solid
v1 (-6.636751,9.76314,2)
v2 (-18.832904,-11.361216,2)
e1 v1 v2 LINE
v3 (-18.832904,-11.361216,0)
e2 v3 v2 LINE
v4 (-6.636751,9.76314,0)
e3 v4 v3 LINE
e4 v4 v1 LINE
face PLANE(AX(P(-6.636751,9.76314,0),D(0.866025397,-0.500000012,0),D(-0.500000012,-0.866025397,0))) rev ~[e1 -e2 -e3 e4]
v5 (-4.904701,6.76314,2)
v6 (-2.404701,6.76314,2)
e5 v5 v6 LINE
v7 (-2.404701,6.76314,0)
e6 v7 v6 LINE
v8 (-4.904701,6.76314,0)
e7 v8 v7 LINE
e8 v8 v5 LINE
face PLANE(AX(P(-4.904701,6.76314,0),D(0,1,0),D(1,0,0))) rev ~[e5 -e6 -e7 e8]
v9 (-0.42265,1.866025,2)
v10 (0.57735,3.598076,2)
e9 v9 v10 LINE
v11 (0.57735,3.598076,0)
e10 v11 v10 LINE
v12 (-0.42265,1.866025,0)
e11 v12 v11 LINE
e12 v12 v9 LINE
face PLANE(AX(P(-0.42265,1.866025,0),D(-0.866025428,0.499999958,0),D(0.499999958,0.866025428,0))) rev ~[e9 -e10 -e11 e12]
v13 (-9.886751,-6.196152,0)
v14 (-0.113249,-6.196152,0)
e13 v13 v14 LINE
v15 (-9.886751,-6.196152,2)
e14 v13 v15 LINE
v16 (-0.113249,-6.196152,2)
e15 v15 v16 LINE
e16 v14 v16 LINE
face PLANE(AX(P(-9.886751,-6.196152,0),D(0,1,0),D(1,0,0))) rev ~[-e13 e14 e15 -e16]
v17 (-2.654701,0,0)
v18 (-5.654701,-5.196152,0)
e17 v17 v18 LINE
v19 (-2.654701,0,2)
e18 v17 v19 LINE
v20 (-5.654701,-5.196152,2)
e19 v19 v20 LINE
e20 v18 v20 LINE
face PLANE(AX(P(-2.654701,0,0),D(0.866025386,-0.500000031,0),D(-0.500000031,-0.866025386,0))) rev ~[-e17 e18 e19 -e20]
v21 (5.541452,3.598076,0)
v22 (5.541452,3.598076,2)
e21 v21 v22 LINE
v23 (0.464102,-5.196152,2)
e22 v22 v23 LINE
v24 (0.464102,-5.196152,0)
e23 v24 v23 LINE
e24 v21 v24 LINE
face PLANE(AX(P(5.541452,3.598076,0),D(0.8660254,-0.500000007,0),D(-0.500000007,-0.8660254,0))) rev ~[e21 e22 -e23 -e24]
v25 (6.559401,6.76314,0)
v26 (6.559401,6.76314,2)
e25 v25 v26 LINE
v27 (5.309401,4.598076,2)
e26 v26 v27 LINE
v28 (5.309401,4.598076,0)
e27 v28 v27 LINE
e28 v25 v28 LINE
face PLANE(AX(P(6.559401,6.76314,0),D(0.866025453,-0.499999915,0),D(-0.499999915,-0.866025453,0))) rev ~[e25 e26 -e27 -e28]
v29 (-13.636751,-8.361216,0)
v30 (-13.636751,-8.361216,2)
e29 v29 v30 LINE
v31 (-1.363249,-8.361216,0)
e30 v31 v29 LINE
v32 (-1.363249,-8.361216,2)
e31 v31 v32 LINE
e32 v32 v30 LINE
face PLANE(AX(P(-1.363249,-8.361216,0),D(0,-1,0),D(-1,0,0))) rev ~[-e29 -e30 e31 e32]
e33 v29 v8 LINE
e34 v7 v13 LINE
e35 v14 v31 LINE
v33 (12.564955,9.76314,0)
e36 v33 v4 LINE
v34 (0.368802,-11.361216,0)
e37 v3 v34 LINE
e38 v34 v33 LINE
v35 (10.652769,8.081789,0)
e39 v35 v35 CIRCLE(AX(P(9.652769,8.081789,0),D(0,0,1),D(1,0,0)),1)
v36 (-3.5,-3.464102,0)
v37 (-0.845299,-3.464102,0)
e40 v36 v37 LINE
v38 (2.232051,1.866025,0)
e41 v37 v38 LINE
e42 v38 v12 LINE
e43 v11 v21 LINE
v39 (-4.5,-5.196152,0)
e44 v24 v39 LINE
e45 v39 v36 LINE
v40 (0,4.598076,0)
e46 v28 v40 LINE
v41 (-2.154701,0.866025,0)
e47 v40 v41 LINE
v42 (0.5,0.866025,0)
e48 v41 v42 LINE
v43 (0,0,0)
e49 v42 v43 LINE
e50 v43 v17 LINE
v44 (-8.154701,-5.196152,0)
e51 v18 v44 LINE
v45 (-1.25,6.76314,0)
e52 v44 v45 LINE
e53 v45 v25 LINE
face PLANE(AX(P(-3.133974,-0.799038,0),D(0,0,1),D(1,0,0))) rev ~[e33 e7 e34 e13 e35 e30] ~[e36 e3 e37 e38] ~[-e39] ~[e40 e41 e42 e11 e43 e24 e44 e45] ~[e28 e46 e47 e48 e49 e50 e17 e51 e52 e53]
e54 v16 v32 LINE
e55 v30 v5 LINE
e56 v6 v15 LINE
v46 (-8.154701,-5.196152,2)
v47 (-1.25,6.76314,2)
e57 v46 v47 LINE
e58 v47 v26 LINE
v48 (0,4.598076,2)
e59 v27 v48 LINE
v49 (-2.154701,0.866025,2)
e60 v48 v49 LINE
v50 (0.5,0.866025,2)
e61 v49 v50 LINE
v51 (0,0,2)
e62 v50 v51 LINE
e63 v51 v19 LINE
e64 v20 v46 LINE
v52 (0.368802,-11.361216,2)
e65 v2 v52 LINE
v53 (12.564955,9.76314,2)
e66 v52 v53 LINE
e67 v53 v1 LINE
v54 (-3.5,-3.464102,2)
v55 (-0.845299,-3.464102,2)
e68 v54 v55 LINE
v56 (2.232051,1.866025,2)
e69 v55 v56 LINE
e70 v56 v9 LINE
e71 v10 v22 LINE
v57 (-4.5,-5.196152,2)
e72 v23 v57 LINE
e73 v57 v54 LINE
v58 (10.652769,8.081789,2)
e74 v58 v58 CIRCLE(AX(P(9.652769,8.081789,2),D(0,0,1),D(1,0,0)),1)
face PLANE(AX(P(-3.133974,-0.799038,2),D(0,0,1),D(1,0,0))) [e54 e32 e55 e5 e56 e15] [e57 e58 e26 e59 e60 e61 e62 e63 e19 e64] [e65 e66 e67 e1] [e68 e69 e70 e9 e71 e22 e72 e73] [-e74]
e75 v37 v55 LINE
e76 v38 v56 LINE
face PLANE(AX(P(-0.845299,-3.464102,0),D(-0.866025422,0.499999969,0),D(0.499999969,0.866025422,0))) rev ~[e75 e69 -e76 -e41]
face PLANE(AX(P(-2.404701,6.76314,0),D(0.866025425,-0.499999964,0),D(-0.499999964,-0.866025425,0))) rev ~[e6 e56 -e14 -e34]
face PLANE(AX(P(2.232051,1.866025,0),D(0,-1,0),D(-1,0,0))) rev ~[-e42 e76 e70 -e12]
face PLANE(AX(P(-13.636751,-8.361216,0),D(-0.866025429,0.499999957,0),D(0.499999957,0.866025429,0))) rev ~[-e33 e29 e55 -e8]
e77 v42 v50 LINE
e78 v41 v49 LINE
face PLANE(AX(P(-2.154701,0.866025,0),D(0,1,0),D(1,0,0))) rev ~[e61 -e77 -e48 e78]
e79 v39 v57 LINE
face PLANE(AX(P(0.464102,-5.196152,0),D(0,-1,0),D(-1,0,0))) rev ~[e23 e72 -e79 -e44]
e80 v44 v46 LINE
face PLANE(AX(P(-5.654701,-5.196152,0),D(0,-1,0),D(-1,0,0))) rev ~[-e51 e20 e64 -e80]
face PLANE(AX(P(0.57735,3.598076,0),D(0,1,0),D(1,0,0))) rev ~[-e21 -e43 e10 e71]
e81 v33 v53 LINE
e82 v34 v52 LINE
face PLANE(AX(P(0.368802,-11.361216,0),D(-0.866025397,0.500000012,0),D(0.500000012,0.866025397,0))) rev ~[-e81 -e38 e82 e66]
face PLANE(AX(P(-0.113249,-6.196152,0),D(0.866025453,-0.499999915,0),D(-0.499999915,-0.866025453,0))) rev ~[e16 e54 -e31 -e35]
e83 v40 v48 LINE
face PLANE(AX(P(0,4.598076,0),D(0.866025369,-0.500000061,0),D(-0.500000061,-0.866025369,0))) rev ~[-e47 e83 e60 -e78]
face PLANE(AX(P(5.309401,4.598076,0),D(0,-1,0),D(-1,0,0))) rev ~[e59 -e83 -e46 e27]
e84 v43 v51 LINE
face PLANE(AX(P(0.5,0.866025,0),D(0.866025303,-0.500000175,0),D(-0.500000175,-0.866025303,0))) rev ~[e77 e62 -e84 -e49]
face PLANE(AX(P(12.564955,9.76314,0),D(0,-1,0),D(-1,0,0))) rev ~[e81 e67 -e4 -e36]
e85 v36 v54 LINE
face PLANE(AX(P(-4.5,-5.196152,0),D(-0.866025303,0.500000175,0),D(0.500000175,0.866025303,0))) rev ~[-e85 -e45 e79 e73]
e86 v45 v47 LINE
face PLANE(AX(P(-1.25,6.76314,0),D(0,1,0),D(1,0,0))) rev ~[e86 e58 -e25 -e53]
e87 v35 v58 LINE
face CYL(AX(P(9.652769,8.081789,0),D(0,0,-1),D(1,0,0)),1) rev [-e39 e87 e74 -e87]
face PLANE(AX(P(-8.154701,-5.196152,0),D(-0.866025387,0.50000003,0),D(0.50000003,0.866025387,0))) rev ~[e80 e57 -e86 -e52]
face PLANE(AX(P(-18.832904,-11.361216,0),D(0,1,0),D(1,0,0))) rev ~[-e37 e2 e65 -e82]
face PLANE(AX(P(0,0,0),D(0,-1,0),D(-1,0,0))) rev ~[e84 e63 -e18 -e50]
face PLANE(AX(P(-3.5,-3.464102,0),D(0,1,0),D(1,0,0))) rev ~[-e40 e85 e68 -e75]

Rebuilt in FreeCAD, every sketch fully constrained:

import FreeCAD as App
import Part
import Sketcher

V = App.Vector
Q = App.Units.Quantity


def add_polygon(sketch, points):
    """Adds a closed chain of lines whose ends are joined by coincident constraints."""
    first, n = sketch.GeometryCount, len(points)
    for a, b in zip(points, points[1:] + points[:1]):
        sketch.addGeometry(Part.LineSegment(App.Vector(*a, 0), App.Vector(*b, 0)), False)
    for i in range(n):
        sketch.addConstraint(Sketcher.Constraint("Coincident", first + i, 2, first + (i + 1) % n, 1))

doc = App.newDocument("Part")
body = doc.addObject("PartDesign::Body", "Body")

# Sketch on XY plane
sketch1 = doc.addObject("Sketcher::SketchObject", "Sketch")
body.addObject(sketch1)
sketch1.AttachmentSupport = (doc.XY_Plane, [""])
sketch1.MapMode = "FlatFace"
add_polygon(sketch1, [(0.368802, -11.361216), (12.564955, 9.76314), (-6.636751, 9.76314), (-18.832904, -11.361216)])  # lines 0-3
add_polygon(sketch1, [(-13.636751, -8.361216), (-4.904701, 6.76314), (-2.404701, 6.76314), (-9.886751, -6.196152), (-0.113249, -6.196152), (-1.363249, -8.361216)])  # lines 4-9
add_polygon(sketch1, [(0.464102, -5.196152), (-4.5, -5.196152), (-3.5, -3.464102), (-0.845299, -3.464102), (2.232051, 1.866025), (-0.42265, 1.866025), (0.57735, 3.598076), (5.541452, 3.598076)])  # lines 10-17
add_polygon(sketch1, [(-2.654701, 0), (-5.654701, -5.196152), (-8.154701, -5.196152), (-1.25, 6.76314), (6.559401, 6.76314), (5.309401, 4.598076), (0, 4.598076), (-2.154701, 0.866025), (0.5, 0.866025), (0, 0)])  # lines 18-27
sketch1.addGeometry(Part.Circle(V(9.652769, 8.081789, 0), V(0, 0, 1), 1), False)  # 28
sketch1.addConstraint([
    Sketcher.Constraint("Horizontal", 1),
    Sketcher.Constraint("Horizontal", 3),
    Sketcher.Constraint("Horizontal", 5),
    Sketcher.Constraint("Horizontal", 7),
    Sketcher.Constraint("Horizontal", 9),
    Sketcher.Constraint("Horizontal", 10),
    Sketcher.Constraint("Horizontal", 12),
    Sketcher.Constraint("Horizontal", 14),
    Sketcher.Constraint("Horizontal", 16),
    Sketcher.Constraint("Horizontal", 19),
    Sketcher.Constraint("Horizontal", 21),
    Sketcher.Constraint("Horizontal", 23),
    Sketcher.Constraint("Horizontal", 25),
    Sketcher.Constraint("Horizontal", 27),
    Sketcher.Constraint("Coincident", 26, 2, -1, 1),
    Sketcher.Constraint("PointOnObject", 23, 2, -2),
    Sketcher.Constraint("Parallel", 0, 2),
    Sketcher.Constraint("Parallel", 2, 4),
    Sketcher.Constraint("Parallel", 4, 6),
    Sketcher.Constraint("Parallel", 6, 8),
    Sketcher.Constraint("Parallel", 8, 11),
    Sketcher.Constraint("Parallel", 11, 13),
    Sketcher.Constraint("Parallel", 13, 15),
    Sketcher.Constraint("Parallel", 15, 17),
    Sketcher.Constraint("Parallel", 17, 18),
    Sketcher.Constraint("Parallel", 18, 20),
    Sketcher.Constraint("Parallel", 20, 22),
    Sketcher.Constraint("Parallel", 22, 24),
    Sketcher.Constraint("Parallel", 24, 26),
    Sketcher.Constraint("Horizontal", 17, 2, 18, 2),
    Sketcher.Constraint("Horizontal", 5, 2, 20, 2),
    Sketcher.Constraint("Equal", 12, 14),
    Sketcher.Constraint("Equal", 5, 19),
    Sketcher.Constraint("Equal", 14, 25),
    Sketcher.Constraint("Equal", 25, 27),
    Sketcher.Constraint("Equal", 11, 15),
    Sketcher.Constraint("Equal", 8, 22),
    Sketcher.Constraint("Diameter", 28, 2.0),
    Sketcher.Constraint("Angle", 0, Q("59.999999 deg")),
    Sketcher.Constraint("Distance", 11, 1.999999),
    Sketcher.Constraint("Distance", 18, 6.0),
    Sketcher.Constraint("Distance", 26, 1.0),
    Sketcher.Constraint("DistanceX", 5, 1, 5, 2, 2.5),
    Sketcher.Constraint("DistanceY", 4, 2, 1, 2, 3.0),
    Sketcher.Constraint("DistanceY", 3, 2, 8, 2, 3.0),
    Sketcher.Constraint("DistanceY", 7, 2, 10, 2, 1.0),
    Sketcher.Constraint("DistanceY", 16, 2, 22, 2, 1.0),
    Sketcher.Constraint("DistanceY", 24, 2, 14, 2, 1.0),
    Sketcher.Constraint("Distance", 8, 2.5),
    Sketcher.Constraint("DistanceX", 10, 2, -1, 1, 4.5),
    Sketcher.Constraint("DistanceX", 6, 2, 1, 2, 3.25),
    Sketcher.Constraint("DistanceX", 16, 1, 16, 2, 4.964102),
    Sketcher.Constraint("DistanceX", 21, 1, 21, 2, 7.809401),
    Sketcher.Constraint("DistanceX", 4, 2, -1, 1, 4.904701),
    Sketcher.Constraint("DistanceX", 10, 2, 3, 2, 4.868802),
    Sketcher.Constraint("DistanceX", 7, 2, 13, 2, 2.3453),
    Sketcher.Constraint("DistanceX", -1, 1, 28, 3, 9.652769),
    Sketcher.Constraint("DistanceY", -1, 1, 28, 3, 8.081789),
])
pad1 = doc.addObject("PartDesign::Pad", "Pad")
body.addObject(pad1)
pad1.Profile = sketch1
pad1.Length = 2

doc.recompute()
